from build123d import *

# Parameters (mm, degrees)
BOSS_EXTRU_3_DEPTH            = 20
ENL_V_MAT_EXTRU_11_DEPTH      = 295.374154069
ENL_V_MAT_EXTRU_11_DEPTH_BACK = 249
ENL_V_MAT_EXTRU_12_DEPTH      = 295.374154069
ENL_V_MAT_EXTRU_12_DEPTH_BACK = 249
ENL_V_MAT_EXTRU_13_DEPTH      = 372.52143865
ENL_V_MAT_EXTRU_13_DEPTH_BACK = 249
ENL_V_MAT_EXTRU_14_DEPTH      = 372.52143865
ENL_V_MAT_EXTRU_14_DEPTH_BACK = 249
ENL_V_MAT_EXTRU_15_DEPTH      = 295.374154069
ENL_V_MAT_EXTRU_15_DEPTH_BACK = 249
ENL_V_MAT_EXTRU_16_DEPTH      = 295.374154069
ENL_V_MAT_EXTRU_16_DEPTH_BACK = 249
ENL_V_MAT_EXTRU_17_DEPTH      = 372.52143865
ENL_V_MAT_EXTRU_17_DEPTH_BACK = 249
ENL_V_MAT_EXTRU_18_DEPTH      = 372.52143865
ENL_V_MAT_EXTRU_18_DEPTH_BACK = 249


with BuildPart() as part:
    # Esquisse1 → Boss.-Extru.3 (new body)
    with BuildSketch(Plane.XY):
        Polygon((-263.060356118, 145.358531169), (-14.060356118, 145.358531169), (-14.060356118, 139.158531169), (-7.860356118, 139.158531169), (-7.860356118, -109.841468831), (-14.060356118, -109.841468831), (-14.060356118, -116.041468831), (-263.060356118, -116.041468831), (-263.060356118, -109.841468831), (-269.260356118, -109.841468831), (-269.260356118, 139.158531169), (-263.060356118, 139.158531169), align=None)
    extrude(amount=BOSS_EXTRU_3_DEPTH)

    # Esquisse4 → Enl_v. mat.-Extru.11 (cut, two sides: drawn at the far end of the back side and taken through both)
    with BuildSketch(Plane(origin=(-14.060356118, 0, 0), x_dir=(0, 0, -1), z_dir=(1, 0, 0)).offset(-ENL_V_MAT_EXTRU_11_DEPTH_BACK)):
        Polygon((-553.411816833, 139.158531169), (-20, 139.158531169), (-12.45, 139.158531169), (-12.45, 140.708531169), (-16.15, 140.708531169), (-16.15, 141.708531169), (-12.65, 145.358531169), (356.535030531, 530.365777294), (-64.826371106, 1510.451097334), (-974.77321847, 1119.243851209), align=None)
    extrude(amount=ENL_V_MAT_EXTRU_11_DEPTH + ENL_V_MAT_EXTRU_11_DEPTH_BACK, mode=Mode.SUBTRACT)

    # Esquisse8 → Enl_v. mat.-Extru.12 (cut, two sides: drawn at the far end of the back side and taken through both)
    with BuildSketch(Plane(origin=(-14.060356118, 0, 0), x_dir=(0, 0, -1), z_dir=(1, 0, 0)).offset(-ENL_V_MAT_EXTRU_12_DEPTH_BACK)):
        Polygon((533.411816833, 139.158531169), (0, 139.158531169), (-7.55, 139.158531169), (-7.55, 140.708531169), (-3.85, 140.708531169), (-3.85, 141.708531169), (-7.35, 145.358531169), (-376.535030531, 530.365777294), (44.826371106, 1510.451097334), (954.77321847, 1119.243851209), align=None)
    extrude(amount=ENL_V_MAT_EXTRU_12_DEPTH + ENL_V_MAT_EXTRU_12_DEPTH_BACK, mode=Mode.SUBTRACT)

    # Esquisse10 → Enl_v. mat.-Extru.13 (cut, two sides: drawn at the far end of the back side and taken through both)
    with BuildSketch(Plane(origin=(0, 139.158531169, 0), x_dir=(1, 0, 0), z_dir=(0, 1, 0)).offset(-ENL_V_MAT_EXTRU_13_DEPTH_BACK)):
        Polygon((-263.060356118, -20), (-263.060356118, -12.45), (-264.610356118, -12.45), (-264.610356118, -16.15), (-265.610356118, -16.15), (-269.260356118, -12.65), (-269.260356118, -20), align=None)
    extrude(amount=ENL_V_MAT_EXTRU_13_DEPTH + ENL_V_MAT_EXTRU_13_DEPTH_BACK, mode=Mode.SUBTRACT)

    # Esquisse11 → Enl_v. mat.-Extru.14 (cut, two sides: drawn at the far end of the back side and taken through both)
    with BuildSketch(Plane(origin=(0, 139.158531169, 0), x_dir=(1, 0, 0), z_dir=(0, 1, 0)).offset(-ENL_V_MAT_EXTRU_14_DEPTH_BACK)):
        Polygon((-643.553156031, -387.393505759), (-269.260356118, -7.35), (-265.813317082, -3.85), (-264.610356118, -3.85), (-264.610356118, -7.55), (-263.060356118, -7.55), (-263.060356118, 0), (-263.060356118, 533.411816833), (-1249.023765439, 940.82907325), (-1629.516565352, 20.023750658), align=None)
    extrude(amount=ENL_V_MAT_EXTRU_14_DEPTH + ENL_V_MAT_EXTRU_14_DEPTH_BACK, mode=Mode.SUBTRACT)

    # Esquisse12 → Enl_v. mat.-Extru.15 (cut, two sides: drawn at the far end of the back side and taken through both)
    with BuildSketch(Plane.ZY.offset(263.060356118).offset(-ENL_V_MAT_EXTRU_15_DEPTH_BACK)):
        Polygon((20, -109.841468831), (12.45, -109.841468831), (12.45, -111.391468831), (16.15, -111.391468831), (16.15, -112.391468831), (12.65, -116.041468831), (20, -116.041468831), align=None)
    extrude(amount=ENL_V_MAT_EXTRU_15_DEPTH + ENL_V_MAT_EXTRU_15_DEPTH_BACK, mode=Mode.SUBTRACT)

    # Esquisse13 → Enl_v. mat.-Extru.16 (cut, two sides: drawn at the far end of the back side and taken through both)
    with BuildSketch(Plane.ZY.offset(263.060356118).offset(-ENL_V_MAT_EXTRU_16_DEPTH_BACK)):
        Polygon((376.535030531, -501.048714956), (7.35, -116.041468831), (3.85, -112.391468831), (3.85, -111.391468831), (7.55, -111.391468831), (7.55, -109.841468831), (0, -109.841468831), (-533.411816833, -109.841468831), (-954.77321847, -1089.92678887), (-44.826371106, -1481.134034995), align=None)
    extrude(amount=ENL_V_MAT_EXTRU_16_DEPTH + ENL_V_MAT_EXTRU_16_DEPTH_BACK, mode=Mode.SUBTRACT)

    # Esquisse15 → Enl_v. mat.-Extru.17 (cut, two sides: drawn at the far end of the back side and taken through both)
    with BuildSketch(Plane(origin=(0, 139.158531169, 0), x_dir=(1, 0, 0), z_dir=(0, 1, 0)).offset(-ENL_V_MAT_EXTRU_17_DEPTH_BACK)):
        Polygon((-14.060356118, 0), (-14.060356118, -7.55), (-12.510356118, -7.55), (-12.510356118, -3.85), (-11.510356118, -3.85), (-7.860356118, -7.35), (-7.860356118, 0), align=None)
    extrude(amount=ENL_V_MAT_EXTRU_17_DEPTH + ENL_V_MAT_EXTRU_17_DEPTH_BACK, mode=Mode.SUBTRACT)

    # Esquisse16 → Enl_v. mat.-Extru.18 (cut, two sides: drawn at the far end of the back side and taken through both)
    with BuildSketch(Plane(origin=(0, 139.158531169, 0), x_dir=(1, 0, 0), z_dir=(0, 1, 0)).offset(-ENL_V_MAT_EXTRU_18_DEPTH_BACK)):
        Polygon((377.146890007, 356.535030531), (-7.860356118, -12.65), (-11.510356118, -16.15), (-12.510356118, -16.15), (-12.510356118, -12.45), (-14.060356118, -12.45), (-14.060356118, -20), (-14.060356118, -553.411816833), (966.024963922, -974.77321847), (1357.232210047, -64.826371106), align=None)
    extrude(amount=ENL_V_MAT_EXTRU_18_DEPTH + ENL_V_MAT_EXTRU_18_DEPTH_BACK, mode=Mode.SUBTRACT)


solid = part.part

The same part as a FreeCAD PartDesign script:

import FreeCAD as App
import Part
import Sketcher
Q = App.Units.Quantity


def add_polygon(sketch, points):
    """Adds a closed chain of lines whose ends are joined by coincident constraints."""
    first, n = sketch.GeometryCount, len(points)
    for a, b in zip(points, points[1:] + points[:1]):
        sketch.addGeometry(Part.LineSegment(App.Vector(*a, 0), App.Vector(*b, 0)), False)
    for i in range(n):
        sketch.addConstraint(Sketcher.Constraint("Coincident", first + i, 2, first + (i + 1) % n, 1))

doc = App.newDocument("Part")
body = doc.addObject("PartDesign::Body", "Body")

# Sketch on XY plane
sketch1 = body.newObject("Sketcher::SketchObject", "Sketch")
sketch1.AttachmentSupport = (doc.getObject("XY_Plane"), [""])
sketch1.MapMode = "FlatFace"
add_polygon(sketch1, [(-14, 145), (-263, 145), (-263, 139), (-269, 139), (-269, -110), (-263, -110), (-263, -116), (-14, -116), (-14, -110), (-8, -110), (-8, 139), (-14, 139)])  # lines 0-11
sketch1.addConstraint([
    Sketcher.Constraint("Horizontal", 0),
    Sketcher.Constraint("Vertical", 1),
    Sketcher.Constraint("Horizontal", 2),
    Sketcher.Constraint("Vertical", 3),
    Sketcher.Constraint("Horizontal", 4),
    Sketcher.Constraint("Vertical", 5),
    Sketcher.Constraint("Horizontal", 6),
    Sketcher.Constraint("Vertical", 7),
    Sketcher.Constraint("Horizontal", 8),
    Sketcher.Constraint("Vertical", 9),
    Sketcher.Constraint("Horizontal", 10),
    Sketcher.Constraint("Vertical", 11),
    Sketcher.Constraint("Horizontal", 4, 2, 7, 2),
    Sketcher.Constraint("Horizontal", 2, 2, 9, 2),
    Sketcher.Constraint("Vertical", 1, 2, 4, 2),
    Sketcher.Constraint("Vertical", 7, 2, 10, 2),
    Sketcher.Constraint("Equal", 4, 8),
    Sketcher.Constraint("Equal", 10, 1),
    Sketcher.Constraint("Equal", 6, 3),
    Sketcher.Constraint("Equal", 1, 5),
    Sketcher.Constraint("DistanceX", 0, 2, 0, 1, Q("249 mm")),
    Sketcher.Constraint("DistanceX", 2, 2, 2, 1, Q("6.2 mm")),
    Sketcher.Constraint("DistanceY", -1, 1, 0, 2, Q("145.358531 mm")),
    Sketcher.Constraint("DistanceX", 0, 2, -1, 1, Q("263.060356 mm")),
])
pad1 = body.newObject("PartDesign::Pad", "Pad")
pad1.Profile = sketch1
pad1.Length = 20

# Sketch on YZ plane
sketch2 = body.newObject("Sketcher::SketchObject", "Sketch001")
sketch2.AttachmentSupport = (doc.getObject("YZ_Plane"), [""])
sketch2.MapMode = "FlatFace"
sketch2.AttachmentOffset = App.Placement(App.Vector(0, 0, -14.060356), App.Rotation())
add_polygon(sketch2, [(139.2, 553.4), (139.2, 12.4), (140.7, 12.4), (140.7, 16.1), (141.7, 16.1), (530.4, -356.5), (1510.5, 64.8), (1119.2, 974.8)])  # lines 0-7
sketch2.addConstraint([
    Sketcher.Constraint("Vertical", 0),
    Sketcher.Constraint("Horizontal", 1),
    Sketcher.Constraint("Vertical", 2),
    Sketcher.Constraint("Horizontal", 3),
    Sketcher.Constraint("Perpendicular", 5, 6),
    Sketcher.Constraint("Perpendicular", 6, 7),
    Sketcher.Constraint("Equal", 5, 7),
    Sketcher.Constraint("DistanceX", 3, 1, 3, 2, Q("1 mm")),
    Sketcher.Constraint("DistanceY", 2, 1, 2, 2, Q("3.7 mm")),
    Sketcher.Constraint("DistanceX", 1, 1, 1, 2, Q("1.55 mm")),
    Sketcher.Constraint("DistanceY", -1, 1, 0, 2, Q("12.45 mm")),
    Sketcher.Constraint("DistanceY", 4, 2, 5, 2, Q("421.361402 mm")),
    Sketcher.Constraint("Distance", 6, Q("990.477852 mm")),
    Sketcher.Constraint("DistanceY", 0, 2, 0, 1, Q("540.961817 mm")),
    Sketcher.Constraint("DistanceX", -1, 1, 0, 2, Q("139.158531 mm")),
    Sketcher.Constraint("DistanceY", 4, 2, -1, 1, Q("356.535031 mm")),
])
pocket1 = body.newObject("PartDesign::Pocket", "Pocket")
pocket1.Profile = sketch2
pocket1.Type = "ThroughAll"
pocket1.Midplane = True

# Sketch on YZ plane
sketch3 = body.newObject("Sketcher::SketchObject", "Sketch002")
sketch3.AttachmentSupport = (doc.getObject("YZ_Plane"), [""])
sketch3.MapMode = "FlatFace"
sketch3.AttachmentOffset = App.Placement(App.Vector(0, 0, -14.060356), App.Rotation())
add_polygon(sketch3, [(139.2, 7.5), (139.2, -533.4), (1119.2, -954.8), (1510.5, -44.8), (530.4, 376.5), (141.7, 3.9), (140.7, 3.9), (140.7, 7.5)])  # lines 0-7
sketch3.addConstraint([
    Sketcher.Constraint("Vertical", 0),
    Sketcher.Constraint("Horizontal", 5),
    Sketcher.Constraint("Vertical", 6),
    Sketcher.Constraint("Horizontal", 7),
    Sketcher.Constraint("Perpendicular", 1, 2),
    Sketcher.Constraint("Perpendicular", 2, 3),
    Sketcher.Constraint("Equal", 1, 3),
    Sketcher.Constraint("DistanceX", 5, 2, 5, 1, Q("1 mm")),
    Sketcher.Constraint("DistanceY", 6, 1, 6, 2, Q("3.7 mm")),
    Sketcher.Constraint("DistanceX", 7, 2, 7, 1, Q("1.55 mm")),
    Sketcher.Constraint("DistanceY", -1, 1, 4, 2, Q("3.85 mm")),
    Sketcher.Constraint("DistanceY", 1, 2, 0, 2, Q("421.361402 mm")),
    Sketcher.Constraint("Distance", 2, Q("990.477852 mm")),
    Sketcher.Constraint("DistanceY", 0, 2, 0, 1, Q("540.961817 mm")),
    Sketcher.Constraint("DistanceX", -1, 1, 0, 2, Q("139.158531 mm")),
    Sketcher.Constraint("DistanceX", -1, 1, 1, 2, Q("1119.243851 mm")),
])
pocket2 = body.newObject("PartDesign::Pocket", "Pocket001")
pocket2.Profile = sketch3
pocket2.Type = "ThroughAll"
pocket2.Midplane = True

# Sketch on XZ plane
sketch4 = body.newObject("Sketcher::SketchObject", "Sketch003")
sketch4.AttachmentSupport = (doc.getObject("XZ_Plane"), [""])
sketch4.MapMode = "FlatFace"
sketch4.AttachmentOffset = App.Placement(App.Vector(0, 0, -139.158531), App.Rotation())
add_polygon(sketch4, [(-263.1, 20), (-263.1, 12.4), (-264.6, 12.4), (-264.6, 16.1), (-265.6, 16.1), (-269.3, 12.7), (-269.3, 20)])  # lines 0-6
sketch4.addConstraint([
    Sketcher.Constraint("Vertical", 0),
    Sketcher.Constraint("Horizontal", 1),
    Sketcher.Constraint("Vertical", 2),
    Sketcher.Constraint("Horizontal", 3),
    Sketcher.Constraint("Vertical", 5),
    Sketcher.Constraint("Horizontal", 6),
    Sketcher.Constraint("DistanceX", 3, 2, 3, 1, Q("1 mm")),
    Sketcher.Constraint("DistanceX", 6, 1, 6, 2, Q("6.2 mm")),
    Sketcher.Constraint("DistanceY", 2, 1, 2, 2, Q("3.7 mm")),
    Sketcher.Constraint("DistanceY", -1, 1, 5, 2, Q("20 mm")),
    Sketcher.Constraint("DistanceX", 1, 2, 1, 1, Q("1.55 mm")),
    Sketcher.Constraint("DistanceY", 0, 2, 0, 1, Q("7.55 mm")),
    Sketcher.Constraint("DistanceY", 5, 1, 5, 2, Q("7.35 mm")),
    Sketcher.Constraint("DistanceX", 0, 2, -1, 1, Q("263.060356 mm")),
])
pocket3 = body.newObject("PartDesign::Pocket", "Pocket002")
pocket3.Profile = sketch4
pocket3.Type = "ThroughAll"
pocket3.Midplane = True

# Sketch on XZ plane
sketch5 = body.newObject("Sketcher::SketchObject", "Sketch004")
sketch5.AttachmentSupport = (doc.getObject("XZ_Plane"), [""])
sketch5.MapMode = "FlatFace"
sketch5.AttachmentOffset = App.Placement(App.Vector(0, 0, -139.158531), App.Rotation())
add_polygon(sketch5, [(-643.6, 387.4), (-269.3, 7.3), (-265.8, 3.9), (-264.6, 3.9), (-264.6, 7.5), (-263.1, 7.5), (-263.1, -533.4), (-1249, -940.8), (-1629.5, -20)])  # lines 0-8
sketch5.addConstraint([
    Sketcher.Constraint("Horizontal", 2),
    Sketcher.Constraint("Vertical", 3),
    Sketcher.Constraint("Horizontal", 4),
    Sketcher.Constraint("Vertical", 5),
    Sketcher.Constraint("Parallel", 0, 1),
    Sketcher.Constraint("Perpendicular", 6, 7),
    Sketcher.Constraint("Perpendicular", 7, 8),
    Sketcher.Constraint("Equal", 6, 8),
    Sketcher.Constraint("DistanceY", 3, 1, 3, 2, Q("3.7 mm")),
    Sketcher.Constraint("DistanceX", 4, 1, 4, 2, Q("1.55 mm")),
    Sketcher.Constraint("DistanceY", 1, 2, 0, 2, Q("3.5 mm")),
    Sketcher.Constraint("DistanceX", 0, 2, 4, 2, Q("6.2 mm")),
    Sketcher.Constraint("DistanceY", -1, 1, 0, 2, Q("7.35 mm")),
    Sketcher.Constraint("DistanceX", 2, 1, 2, 2, Q("1.202961 mm")),
    Sketcher.Constraint("DistanceX", 7, 2, 6, 2, Q("380.4928 mm")),
    Sketcher.Constraint("DistanceY", 5, 2, 5, 1, Q("540.961817 mm")),
    Sketcher.Constraint("DistanceY", 7, 2, -1, 1, Q("20.023751 mm")),
    Sketcher.Constraint("DistanceX", 0, 2, -1, 1, Q("269.260356 mm")),
])
pocket4 = body.newObject("PartDesign::Pocket", "Pocket003")
pocket4.Profile = sketch5
pocket4.Type = "ThroughAll"
pocket4.Midplane = True

# Sketch on YZ plane
sketch6 = body.newObject("Sketcher::SketchObject", "Sketch005")
sketch6.AttachmentSupport = (doc.getObject("YZ_Plane"), [""])
sketch6.MapMode = "FlatFace"
sketch6.AttachmentOffset = App.Placement(App.Vector(0, 0, -263.060356), App.Rotation())
add_polygon(sketch6, [(-109.8, 20), (-109.8, 12.4), (-111.4, 12.4), (-111.4, 16.1), (-112.4, 16.1), (-116, 12.7), (-116, 20)])  # lines 0-6
sketch6.addConstraint([
    Sketcher.Constraint("Vertical", 0),
    Sketcher.Constraint("Horizontal", 1),
    Sketcher.Constraint("Vertical", 2),
    Sketcher.Constraint("Horizontal", 3),
    Sketcher.Constraint("Vertical", 5),
    Sketcher.Constraint("Horizontal", 6),
    Sketcher.Constraint("DistanceX", 3, 2, 3, 1, Q("1 mm")),
    Sketcher.Constraint("DistanceX", 6, 1, 6, 2, Q("6.2 mm")),
    Sketcher.Constraint("DistanceY", 2, 1, 2, 2, Q("3.7 mm")),
    Sketcher.Constraint("DistanceY", -1, 1, 5, 2, Q("20 mm")),
    Sketcher.Constraint("DistanceX", 1, 2, 1, 1, Q("1.55 mm")),
    Sketcher.Constraint("DistanceY", 0, 2, 0, 1, Q("7.55 mm")),
    Sketcher.Constraint("DistanceY", 5, 1, 5, 2, Q("7.35 mm")),
    Sketcher.Constraint("DistanceX", 0, 2, -1, 1, Q("109.841469 mm")),
])
pocket5 = body.newObject("PartDesign::Pocket", "Pocket004")
pocket5.Profile = sketch6
pocket5.Type = "ThroughAll"
pocket5.Midplane = True

# Sketch on YZ plane
sketch7 = body.newObject("Sketcher::SketchObject", "Sketch006")
sketch7.AttachmentSupport = (doc.getObject("YZ_Plane"), [""])
sketch7.MapMode = "FlatFace"
sketch7.AttachmentOffset = App.Placement(App.Vector(0, 0, -263.060356), App.Rotation())
add_polygon(sketch7, [(-501, 376.5), (-112.4, 3.9), (-111.4, 3.9), (-111.4, 7.5), (-109.8, 7.5), (-109.8, -533.4), (-1089.9, -954.8), (-1481.1, -44.8)])  # lines 0-7
sketch7.addConstraint([
    Sketcher.Constraint("Horizontal", 1),
    Sketcher.Constraint("Vertical", 2),
    Sketcher.Constraint("Horizontal", 3),
    Sketcher.Constraint("Vertical", 4),
    Sketcher.Constraint("Perpendicular", 5, 6),
    Sketcher.Constraint("Perpendicular", 6, 7),
    Sketcher.Constraint("Equal", 5, 7),
    Sketcher.Constraint("DistanceX", 1, 1, 1, 2, Q("1 mm")),
    Sketcher.Constraint("DistanceY", 2, 1, 2, 2, Q("3.7 mm")),
    Sketcher.Constraint("DistanceX", 3, 1, 3, 2, Q("1.55 mm")),
    Sketcher.Constraint("DistanceY", -1, 1, 0, 2, Q("3.85 mm")),
    Sketcher.Constraint("DistanceY", 5, 2, 4, 2, Q("421.361402 mm")),
    Sketcher.Constraint("Distance", 6, Q("990.477852 mm")),
    Sketcher.Constraint("DistanceY", 4, 2, 4, 1, Q("540.961817 mm")),
    Sketcher.Constraint("DistanceX", 0, 2, -1, 1, Q("112.391469 mm")),
    Sketcher.Constraint("DistanceX", 5, 2, -1, 1, Q("1089.926789 mm")),
])
pocket6 = body.newObject("PartDesign::Pocket", "Pocket005")
pocket6.Profile = sketch7
pocket6.Type = "ThroughAll"
pocket6.Midplane = True

# Sketch on XZ plane
sketch8 = body.newObject("Sketcher::SketchObject", "Sketch007")
sketch8.AttachmentSupport = (doc.getObject("XZ_Plane"), [""])
sketch8.MapMode = "FlatFace"
sketch8.AttachmentOffset = App.Placement(App.Vector(0, 0, -139.158531), App.Rotation())
add_polygon(sketch8, [(-14.1, 0), (-14.1, 7.5), (-12.5, 7.5), (-12.5, 3.9), (-11.5, 3.9), (-7.9, 7.3), (-7.9, 0)])  # lines 0-6
sketch8.addConstraint([
    Sketcher.Constraint("Vertical", 0),
    Sketcher.Constraint("Horizontal", 1),
    Sketcher.Constraint("Vertical", 2),
    Sketcher.Constraint("Horizontal", 3),
    Sketcher.Constraint("Vertical", 5),
    Sketcher.Constraint("Horizontal", 6),
    Sketcher.Constraint("PointOnObject", 5, 2, -1),
    Sketcher.Constraint("DistanceX", 3, 1, 3, 2, Q("1 mm")),
    Sketcher.Constraint("DistanceX", 6, 2, 6, 1, Q("6.2 mm")),
    Sketcher.Constraint("DistanceY", 2, 2, 2, 1, Q("3.7 mm")),
    Sketcher.Constraint("DistanceX", 1, 1, 1, 2, Q("1.55 mm")),
    Sketcher.Constraint("DistanceY", 0, 1, 0, 2, Q("7.55 mm")),
    Sketcher.Constraint("DistanceY", 5, 2, 5, 1, Q("7.35 mm")),
    Sketcher.Constraint("DistanceX", 0, 2, -1, 1, Q("14.060356 mm")),
])
pocket7 = body.newObject("PartDesign::Pocket", "Pocket006")
pocket7.Profile = sketch8
pocket7.Type = "ThroughAll"
pocket7.Midplane = True

# Sketch on XZ plane
sketch9 = body.newObject("Sketcher::SketchObject", "Sketch008")
sketch9.AttachmentSupport = (doc.getObject("XZ_Plane"), [""])
sketch9.MapMode = "FlatFace"
sketch9.AttachmentOffset = App.Placement(App.Vector(0, 0, -139.158531), App.Rotation())
add_polygon(sketch9, [(377.1, -356.5), (-11.5, 16.1), (-12.5, 16.1), (-12.5, 12.4), (-14.1, 12.4), (-14.1, 553.4), (966, 974.8), (1357.2, 64.8)])  # lines 0-7
sketch9.addConstraint([
    Sketcher.Constraint("Horizontal", 1),
    Sketcher.Constraint("Vertical", 2),
    Sketcher.Constraint("Horizontal", 3),
    Sketcher.Constraint("Vertical", 4),
    Sketcher.Constraint("Perpendicular", 5, 6),
    Sketcher.Constraint("Perpendicular", 6, 7),
    Sketcher.Constraint("Equal", 5, 7),
    Sketcher.Constraint("DistanceX", 1, 2, 1, 1, Q("1 mm")),
    Sketcher.Constraint("DistanceY", 2, 2, 2, 1, Q("3.7 mm")),
    Sketcher.Constraint("DistanceX", 3, 2, 3, 1, Q("1.55 mm")),
    Sketcher.Constraint("DistanceY", -1, 1, 0, 2, Q("16.15 mm")),
    Sketcher.Constraint("DistanceY", 4, 2, 5, 2, Q("421.361402 mm")),
    Sketcher.Constraint("Distance", 6, Q("990.477852 mm")),
    Sketcher.Constraint("DistanceY", 4, 1, 4, 2, Q("540.961817 mm")),
    Sketcher.Constraint("DistanceX", -1, 1, 6, 2, Q("1357.23221 mm")),
    Sketcher.Constraint("DistanceY", -1, 1, 6, 2, Q("64.826371 mm")),
])
pocket8 = body.newObject("PartDesign::Pocket", "Pocket007")
pocket8.Profile = sketch9
pocket8.Type = "ThroughAll"
pocket8.Midplane = True

doc.recompute()
